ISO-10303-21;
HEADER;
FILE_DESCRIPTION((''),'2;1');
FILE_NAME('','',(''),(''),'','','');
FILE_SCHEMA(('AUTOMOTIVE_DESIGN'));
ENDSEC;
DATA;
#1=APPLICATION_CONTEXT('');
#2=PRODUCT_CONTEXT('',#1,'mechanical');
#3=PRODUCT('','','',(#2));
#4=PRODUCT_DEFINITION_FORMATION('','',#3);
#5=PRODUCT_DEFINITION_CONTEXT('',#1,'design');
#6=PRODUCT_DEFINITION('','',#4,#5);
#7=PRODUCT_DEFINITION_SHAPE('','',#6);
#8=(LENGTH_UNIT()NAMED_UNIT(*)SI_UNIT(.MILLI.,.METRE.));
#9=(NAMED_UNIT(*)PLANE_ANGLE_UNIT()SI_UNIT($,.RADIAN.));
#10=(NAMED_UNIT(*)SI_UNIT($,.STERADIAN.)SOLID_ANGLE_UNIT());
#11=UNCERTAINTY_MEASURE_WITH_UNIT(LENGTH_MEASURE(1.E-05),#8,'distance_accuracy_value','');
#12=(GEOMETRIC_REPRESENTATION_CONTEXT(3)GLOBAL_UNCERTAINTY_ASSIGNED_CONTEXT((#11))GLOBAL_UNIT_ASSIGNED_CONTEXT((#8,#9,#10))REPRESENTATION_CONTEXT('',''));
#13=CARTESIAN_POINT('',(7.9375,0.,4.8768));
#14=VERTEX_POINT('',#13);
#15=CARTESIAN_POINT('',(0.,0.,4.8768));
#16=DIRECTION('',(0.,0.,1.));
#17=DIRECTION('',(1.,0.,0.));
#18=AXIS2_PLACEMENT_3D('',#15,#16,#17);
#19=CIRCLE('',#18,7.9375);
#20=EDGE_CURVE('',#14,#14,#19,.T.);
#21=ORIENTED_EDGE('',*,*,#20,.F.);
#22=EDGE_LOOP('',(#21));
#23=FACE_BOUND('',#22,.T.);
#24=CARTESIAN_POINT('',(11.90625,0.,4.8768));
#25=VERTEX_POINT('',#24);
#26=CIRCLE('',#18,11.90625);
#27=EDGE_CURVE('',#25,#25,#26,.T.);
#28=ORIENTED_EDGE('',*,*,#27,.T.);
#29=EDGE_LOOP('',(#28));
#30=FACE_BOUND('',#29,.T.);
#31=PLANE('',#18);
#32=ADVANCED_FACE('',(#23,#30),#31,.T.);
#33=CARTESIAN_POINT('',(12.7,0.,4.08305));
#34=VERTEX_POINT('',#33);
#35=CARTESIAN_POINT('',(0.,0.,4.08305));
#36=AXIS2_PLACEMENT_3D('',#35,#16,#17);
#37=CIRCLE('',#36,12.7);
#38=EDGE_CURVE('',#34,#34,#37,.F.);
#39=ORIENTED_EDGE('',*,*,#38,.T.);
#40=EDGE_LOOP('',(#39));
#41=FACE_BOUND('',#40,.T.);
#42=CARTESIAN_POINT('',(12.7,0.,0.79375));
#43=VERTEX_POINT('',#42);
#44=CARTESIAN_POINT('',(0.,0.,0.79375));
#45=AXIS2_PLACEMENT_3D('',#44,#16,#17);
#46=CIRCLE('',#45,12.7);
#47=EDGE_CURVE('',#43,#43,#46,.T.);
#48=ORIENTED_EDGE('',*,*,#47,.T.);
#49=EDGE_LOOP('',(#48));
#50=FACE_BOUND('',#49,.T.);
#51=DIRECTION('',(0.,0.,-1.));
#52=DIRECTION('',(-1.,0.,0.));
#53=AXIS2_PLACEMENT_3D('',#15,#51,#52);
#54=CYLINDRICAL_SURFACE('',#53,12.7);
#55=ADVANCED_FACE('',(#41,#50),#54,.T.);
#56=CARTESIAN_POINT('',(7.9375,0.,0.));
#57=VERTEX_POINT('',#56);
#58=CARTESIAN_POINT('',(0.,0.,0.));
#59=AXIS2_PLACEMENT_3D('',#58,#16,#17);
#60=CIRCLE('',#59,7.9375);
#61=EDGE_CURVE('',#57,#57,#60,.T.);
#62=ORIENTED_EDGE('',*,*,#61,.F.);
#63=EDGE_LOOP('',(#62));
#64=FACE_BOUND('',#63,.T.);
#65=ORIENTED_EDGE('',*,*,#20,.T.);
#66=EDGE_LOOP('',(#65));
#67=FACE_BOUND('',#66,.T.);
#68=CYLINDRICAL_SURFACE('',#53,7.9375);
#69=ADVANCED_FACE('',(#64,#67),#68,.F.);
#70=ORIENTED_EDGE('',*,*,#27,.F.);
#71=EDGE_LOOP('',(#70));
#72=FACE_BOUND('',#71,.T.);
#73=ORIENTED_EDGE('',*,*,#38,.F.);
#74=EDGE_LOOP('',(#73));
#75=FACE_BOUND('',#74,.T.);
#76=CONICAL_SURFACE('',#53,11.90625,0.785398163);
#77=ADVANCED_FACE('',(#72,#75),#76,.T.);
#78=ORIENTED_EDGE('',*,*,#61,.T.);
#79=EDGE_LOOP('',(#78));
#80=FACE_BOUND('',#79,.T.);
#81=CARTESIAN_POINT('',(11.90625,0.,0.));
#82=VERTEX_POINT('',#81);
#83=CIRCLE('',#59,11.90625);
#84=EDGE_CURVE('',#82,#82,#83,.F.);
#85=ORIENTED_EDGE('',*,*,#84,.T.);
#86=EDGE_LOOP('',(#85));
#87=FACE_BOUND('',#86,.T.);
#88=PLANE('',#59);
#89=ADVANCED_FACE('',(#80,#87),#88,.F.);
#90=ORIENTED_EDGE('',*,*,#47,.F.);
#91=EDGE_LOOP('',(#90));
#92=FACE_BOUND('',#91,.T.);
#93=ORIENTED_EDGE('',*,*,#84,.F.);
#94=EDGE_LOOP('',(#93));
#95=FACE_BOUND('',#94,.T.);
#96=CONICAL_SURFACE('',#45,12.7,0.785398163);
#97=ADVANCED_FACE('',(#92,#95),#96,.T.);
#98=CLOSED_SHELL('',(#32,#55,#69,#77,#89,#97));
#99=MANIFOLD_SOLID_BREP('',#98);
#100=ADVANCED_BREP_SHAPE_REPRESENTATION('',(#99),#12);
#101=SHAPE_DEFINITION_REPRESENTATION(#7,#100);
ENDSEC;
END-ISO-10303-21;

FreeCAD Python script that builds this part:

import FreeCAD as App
import Part
import Sketcher

V = App.Vector
Q = App.Units.Quantity


def edges_at(feature, points):
    """Names of the edges that pass closest to the given points."""
    edges = feature.Shape.Edges
    near = lambda p: min(range(len(edges)), key=lambda i: edges[i].distToShape(Part.Vertex(*p))[0])
    return sorted({f"Edge{near(p) + 1}" for p in points})

doc = App.newDocument("Part")
body = doc.addObject("PartDesign::Body", "Body")

# Sketch on XY plane
sketch1 = doc.addObject("Sketcher::SketchObject", "Sketch")
body.addObject(sketch1)
sketch1.AttachmentSupport = (doc.XY_Plane, [""])
sketch1.MapMode = "FlatFace"
sketch1.addGeometry(Part.Circle(V(0, 0, 0), V(0, 0, 1), 12.7), False)
sketch1.addGeometry(Part.Circle(V(0, 0, 0), V(0, 0, 1), 7.9375), False)
sketch1.addConstraint(Sketcher.Constraint("Coincident", 0, 3, -1, 1))
sketch1.addConstraint(Sketcher.Constraint("Coincident", 1, 3, -1, 1))
sketch1.addConstraint(Sketcher.Constraint("Diameter", 0, Q("1 in")))
sketch1.addConstraint(Sketcher.Constraint("Diameter", 1, Q("0.625 in")))
pad1 = doc.addObject("PartDesign::Pad", "Pad")
body.addObject(pad1)
pad1.Profile = sketch1
pad1.Length = Q("0.192 in")
doc.recompute()

chamfer = doc.addObject("PartDesign::Chamfer", "Chamfer")
body.addObject(chamfer)
chamfer.Base = (pad1, edges_at(pad1, [(-12.7, 0, 0), (-12.7, 0, 4.877)]))
chamfer.Size = Q("0.03125 in")

doc.recompute()
